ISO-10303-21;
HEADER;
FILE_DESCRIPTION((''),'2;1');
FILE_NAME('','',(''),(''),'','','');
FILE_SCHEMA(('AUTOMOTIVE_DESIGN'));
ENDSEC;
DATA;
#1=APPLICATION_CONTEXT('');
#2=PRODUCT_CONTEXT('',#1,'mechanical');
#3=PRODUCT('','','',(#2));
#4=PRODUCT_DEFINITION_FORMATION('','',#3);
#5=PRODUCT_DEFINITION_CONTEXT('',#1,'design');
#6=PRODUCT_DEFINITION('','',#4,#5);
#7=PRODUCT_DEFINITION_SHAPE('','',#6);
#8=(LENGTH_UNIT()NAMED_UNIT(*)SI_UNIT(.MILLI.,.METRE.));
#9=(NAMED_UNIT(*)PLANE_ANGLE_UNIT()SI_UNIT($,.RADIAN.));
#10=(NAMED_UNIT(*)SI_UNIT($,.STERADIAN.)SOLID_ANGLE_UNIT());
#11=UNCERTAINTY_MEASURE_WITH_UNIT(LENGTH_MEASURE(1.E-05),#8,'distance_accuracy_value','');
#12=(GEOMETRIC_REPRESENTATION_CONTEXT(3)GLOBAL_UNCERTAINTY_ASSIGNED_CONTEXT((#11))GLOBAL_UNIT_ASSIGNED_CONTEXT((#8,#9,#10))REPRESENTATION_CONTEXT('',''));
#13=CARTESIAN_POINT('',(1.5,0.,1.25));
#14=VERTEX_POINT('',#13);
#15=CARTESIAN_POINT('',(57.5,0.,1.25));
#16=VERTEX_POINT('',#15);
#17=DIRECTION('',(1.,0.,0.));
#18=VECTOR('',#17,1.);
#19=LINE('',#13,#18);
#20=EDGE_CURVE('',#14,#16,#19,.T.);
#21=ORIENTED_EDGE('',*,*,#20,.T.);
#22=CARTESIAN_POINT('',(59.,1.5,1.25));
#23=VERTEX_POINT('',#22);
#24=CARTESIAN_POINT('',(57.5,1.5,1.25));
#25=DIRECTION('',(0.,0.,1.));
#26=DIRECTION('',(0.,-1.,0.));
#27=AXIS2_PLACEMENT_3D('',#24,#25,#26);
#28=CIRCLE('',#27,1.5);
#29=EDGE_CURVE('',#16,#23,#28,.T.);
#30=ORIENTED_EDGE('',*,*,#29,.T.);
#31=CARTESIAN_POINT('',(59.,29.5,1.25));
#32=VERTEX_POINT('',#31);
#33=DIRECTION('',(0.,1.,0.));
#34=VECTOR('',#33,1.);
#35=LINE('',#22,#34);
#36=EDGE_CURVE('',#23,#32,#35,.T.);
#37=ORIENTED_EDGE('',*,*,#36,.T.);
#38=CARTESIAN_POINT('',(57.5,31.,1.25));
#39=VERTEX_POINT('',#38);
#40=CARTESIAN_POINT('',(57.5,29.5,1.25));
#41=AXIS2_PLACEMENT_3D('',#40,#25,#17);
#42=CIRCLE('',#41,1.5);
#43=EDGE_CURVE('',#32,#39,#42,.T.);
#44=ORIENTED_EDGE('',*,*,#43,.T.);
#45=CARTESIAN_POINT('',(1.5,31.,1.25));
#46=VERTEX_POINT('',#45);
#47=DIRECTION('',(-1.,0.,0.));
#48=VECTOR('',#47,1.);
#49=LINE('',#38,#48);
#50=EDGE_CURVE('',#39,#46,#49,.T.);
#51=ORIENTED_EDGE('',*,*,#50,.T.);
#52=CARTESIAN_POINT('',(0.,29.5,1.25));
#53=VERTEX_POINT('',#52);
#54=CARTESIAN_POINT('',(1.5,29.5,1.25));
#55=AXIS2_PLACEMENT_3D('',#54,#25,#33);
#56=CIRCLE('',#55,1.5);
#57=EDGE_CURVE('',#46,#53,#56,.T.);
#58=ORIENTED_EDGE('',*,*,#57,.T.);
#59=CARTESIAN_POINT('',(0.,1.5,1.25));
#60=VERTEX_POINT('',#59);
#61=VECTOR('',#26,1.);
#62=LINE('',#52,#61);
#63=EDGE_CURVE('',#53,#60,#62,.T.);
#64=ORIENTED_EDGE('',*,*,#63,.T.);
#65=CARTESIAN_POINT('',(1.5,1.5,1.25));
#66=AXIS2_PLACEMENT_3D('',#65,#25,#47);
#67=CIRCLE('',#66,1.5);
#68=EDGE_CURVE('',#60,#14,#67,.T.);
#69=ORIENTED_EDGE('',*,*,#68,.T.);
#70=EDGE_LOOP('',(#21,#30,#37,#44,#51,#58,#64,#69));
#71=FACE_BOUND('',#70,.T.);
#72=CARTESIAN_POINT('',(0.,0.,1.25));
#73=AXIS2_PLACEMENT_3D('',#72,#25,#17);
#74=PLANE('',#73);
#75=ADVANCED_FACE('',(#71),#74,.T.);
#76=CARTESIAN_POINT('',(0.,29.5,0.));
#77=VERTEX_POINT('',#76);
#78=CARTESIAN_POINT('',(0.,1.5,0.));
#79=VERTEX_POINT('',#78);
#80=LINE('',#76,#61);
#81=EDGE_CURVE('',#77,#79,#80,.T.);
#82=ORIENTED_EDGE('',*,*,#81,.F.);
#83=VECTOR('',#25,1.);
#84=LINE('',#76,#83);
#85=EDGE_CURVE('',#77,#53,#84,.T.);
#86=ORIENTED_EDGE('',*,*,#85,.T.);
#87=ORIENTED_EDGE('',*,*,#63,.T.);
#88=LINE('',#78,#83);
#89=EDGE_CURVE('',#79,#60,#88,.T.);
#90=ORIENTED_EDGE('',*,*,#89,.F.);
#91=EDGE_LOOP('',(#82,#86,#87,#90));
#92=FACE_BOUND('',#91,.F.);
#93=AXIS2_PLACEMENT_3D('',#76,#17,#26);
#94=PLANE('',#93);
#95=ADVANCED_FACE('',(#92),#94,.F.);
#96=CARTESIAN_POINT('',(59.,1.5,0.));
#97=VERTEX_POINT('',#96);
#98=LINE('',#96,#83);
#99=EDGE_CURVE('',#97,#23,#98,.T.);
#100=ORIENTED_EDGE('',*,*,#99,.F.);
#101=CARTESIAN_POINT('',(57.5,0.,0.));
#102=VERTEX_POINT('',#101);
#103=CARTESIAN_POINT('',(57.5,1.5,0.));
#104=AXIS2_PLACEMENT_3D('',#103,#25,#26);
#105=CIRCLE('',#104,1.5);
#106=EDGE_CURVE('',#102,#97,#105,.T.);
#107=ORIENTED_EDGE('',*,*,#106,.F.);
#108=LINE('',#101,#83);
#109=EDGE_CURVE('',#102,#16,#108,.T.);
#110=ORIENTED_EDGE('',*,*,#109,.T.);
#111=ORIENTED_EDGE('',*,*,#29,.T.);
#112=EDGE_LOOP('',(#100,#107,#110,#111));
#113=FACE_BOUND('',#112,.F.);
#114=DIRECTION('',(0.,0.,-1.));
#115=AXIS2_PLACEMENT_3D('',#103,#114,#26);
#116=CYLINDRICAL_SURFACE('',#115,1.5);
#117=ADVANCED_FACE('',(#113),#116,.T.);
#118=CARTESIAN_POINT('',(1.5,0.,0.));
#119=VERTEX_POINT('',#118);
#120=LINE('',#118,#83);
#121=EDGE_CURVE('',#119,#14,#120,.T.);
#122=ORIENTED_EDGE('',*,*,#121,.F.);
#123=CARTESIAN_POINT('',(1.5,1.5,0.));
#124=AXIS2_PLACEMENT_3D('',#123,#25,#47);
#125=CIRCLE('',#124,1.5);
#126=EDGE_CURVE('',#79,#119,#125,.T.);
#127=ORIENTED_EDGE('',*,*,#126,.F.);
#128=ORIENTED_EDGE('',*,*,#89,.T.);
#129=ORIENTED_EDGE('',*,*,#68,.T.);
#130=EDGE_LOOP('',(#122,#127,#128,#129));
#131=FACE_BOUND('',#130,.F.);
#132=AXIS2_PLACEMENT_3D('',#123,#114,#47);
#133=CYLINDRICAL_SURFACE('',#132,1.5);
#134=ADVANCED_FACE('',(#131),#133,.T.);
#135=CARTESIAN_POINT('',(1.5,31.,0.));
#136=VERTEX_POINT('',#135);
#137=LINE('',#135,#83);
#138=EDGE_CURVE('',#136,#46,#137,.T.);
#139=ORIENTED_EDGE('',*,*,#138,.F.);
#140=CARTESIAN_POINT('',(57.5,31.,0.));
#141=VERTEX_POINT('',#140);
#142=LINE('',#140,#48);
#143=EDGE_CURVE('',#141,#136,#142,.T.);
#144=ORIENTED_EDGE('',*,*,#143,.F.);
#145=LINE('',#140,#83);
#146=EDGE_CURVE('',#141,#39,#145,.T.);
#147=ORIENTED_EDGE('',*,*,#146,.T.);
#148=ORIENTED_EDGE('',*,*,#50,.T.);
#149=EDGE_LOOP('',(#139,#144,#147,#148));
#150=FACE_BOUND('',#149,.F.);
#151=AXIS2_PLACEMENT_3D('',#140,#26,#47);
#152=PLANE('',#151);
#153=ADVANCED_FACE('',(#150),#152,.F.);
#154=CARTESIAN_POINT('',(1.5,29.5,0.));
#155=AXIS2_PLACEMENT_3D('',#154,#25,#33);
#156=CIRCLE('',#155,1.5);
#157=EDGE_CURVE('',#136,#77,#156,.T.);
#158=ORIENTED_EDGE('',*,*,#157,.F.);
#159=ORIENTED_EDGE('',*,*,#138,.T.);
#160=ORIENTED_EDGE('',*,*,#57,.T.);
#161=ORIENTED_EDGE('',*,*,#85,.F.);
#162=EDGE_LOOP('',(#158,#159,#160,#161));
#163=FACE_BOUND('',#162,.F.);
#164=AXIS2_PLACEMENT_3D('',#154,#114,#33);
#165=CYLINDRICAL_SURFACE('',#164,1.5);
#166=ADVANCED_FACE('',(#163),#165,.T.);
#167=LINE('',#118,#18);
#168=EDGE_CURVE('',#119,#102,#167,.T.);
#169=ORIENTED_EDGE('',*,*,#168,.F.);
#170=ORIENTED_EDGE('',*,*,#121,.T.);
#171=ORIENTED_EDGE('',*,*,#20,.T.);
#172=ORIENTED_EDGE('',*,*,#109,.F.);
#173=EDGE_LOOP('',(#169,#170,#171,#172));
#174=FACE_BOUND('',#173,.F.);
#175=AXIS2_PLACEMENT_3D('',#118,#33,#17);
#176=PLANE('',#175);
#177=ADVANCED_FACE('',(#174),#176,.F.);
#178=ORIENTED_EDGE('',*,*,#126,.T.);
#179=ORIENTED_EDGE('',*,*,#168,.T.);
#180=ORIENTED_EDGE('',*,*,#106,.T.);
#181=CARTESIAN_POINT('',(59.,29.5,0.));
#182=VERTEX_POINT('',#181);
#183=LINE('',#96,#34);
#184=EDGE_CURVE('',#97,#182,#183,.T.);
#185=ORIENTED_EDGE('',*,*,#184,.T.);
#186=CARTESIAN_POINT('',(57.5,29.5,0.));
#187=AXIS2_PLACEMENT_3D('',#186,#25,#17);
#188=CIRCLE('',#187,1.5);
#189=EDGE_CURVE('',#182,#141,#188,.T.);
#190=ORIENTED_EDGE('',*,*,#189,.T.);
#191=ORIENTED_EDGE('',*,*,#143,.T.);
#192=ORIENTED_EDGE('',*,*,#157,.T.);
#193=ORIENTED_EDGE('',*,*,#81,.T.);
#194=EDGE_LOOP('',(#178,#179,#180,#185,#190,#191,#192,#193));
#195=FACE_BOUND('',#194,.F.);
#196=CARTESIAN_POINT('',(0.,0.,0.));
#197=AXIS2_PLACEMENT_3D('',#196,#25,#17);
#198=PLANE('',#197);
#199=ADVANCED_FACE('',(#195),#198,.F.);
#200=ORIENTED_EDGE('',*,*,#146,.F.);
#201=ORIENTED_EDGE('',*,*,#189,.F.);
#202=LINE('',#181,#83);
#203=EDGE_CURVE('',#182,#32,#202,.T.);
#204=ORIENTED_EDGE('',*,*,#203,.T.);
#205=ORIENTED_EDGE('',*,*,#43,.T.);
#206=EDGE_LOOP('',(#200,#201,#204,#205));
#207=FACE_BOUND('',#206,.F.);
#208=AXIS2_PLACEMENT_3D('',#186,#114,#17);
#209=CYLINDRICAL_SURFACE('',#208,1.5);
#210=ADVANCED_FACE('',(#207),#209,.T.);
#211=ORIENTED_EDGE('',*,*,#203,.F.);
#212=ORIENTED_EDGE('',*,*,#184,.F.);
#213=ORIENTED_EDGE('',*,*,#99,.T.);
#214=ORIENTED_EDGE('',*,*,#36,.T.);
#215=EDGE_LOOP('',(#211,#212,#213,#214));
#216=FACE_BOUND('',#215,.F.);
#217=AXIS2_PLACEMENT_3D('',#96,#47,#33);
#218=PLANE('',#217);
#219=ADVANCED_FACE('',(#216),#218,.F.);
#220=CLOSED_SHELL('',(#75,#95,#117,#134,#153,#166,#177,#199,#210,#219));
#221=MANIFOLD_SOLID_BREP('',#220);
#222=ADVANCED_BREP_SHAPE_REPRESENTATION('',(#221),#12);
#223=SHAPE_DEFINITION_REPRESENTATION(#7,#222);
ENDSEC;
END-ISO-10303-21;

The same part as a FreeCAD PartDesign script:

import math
import FreeCAD as App
import Part
import Sketcher
from FreeCAD import Vector

doc = App.newDocument("Part")
body = doc.addObject("PartDesign::Body", "Body")

sketch1 = body.newObject("Sketcher::SketchObject", "Sketch")
sketch1.AttachmentSupport = (doc.getObject("XY_Plane"), [""])
sketch1.MapMode = "FlatFace"
sketch1.addGeometry(Part.ArcOfCircle(Part.Circle(Vector(1.5, 1.5, 0), Vector(0, 0, 1), 1.5), math.radians(180), math.radians(270)), False)
sketch1.addGeometry(Part.LineSegment(Vector(1.5, 0, 0), Vector(57.5, 0, 0)), False)
sketch1.addGeometry(Part.ArcOfCircle(Part.Circle(Vector(57.5, 1.5, 0), Vector(0, 0, 1), 1.5), math.radians(-90), math.radians(0)), False)
sketch1.addGeometry(Part.LineSegment(Vector(59, 1.5, 0), Vector(59, 29.5, 0)), False)
sketch1.addGeometry(Part.ArcOfCircle(Part.Circle(Vector(57.5, 29.5, 0), Vector(0, 0, 1), 1.5), math.radians(0), math.radians(90)), False)
sketch1.addGeometry(Part.LineSegment(Vector(57.5, 31, 0), Vector(1.5, 31, 0)), False)
sketch1.addGeometry(Part.ArcOfCircle(Part.Circle(Vector(1.5, 29.5, 0), Vector(0, 0, 1), 1.5), math.radians(90), math.radians(180)), False)
sketch1.addGeometry(Part.LineSegment(Vector(0, 29.5, 0), Vector(0, 1.5, 0)), False)
sketch1.addConstraint(Sketcher.Constraint("Tangent", 0, 2, 1, 1))
sketch1.addConstraint(Sketcher.Constraint("Tangent", 1, 2, 2, 1))
sketch1.addConstraint(Sketcher.Constraint("Tangent", 2, 2, 3, 1))
sketch1.addConstraint(Sketcher.Constraint("Tangent", 3, 2, 4, 1))
sketch1.addConstraint(Sketcher.Constraint("Tangent", 4, 2, 5, 1))
sketch1.addConstraint(Sketcher.Constraint("Tangent", 5, 2, 6, 1))
sketch1.addConstraint(Sketcher.Constraint("Tangent", 6, 2, 7, 1))
sketch1.addConstraint(Sketcher.Constraint("Tangent", 7, 2, 0, 1))
sketch1.addConstraint(Sketcher.Constraint("Horizontal", 1))
sketch1.addConstraint(Sketcher.Constraint("Vertical", 3))
sketch1.addConstraint(Sketcher.Constraint("Horizontal", 5))
sketch1.addConstraint(Sketcher.Constraint("Vertical", 7))
sketch1.addConstraint(Sketcher.Constraint("Equal", 0, 2))
sketch1.addConstraint(Sketcher.Constraint("Equal", 2, 4))
sketch1.addConstraint(Sketcher.Constraint("Equal", 4, 6))
sketch1.addConstraint(Sketcher.Constraint("PointOnObject", 0, 2, -1))
sketch1.addConstraint(Sketcher.Constraint("PointOnObject", 6, 2, -2))
sketch1.addConstraint(Sketcher.Constraint("Radius", 0, 1.5))
sketch1.addConstraint(Sketcher.Constraint("DistanceX", -1, 1, 2, 2, 59.0))
sketch1.addConstraint(Sketcher.Constraint("DistanceY", -1, 1, 4, 2, 31.0))
pad1 = body.newObject("PartDesign::Pad", "Pad")
pad1.Profile = sketch1
pad1.Length = 1.25

doc.recompute()
